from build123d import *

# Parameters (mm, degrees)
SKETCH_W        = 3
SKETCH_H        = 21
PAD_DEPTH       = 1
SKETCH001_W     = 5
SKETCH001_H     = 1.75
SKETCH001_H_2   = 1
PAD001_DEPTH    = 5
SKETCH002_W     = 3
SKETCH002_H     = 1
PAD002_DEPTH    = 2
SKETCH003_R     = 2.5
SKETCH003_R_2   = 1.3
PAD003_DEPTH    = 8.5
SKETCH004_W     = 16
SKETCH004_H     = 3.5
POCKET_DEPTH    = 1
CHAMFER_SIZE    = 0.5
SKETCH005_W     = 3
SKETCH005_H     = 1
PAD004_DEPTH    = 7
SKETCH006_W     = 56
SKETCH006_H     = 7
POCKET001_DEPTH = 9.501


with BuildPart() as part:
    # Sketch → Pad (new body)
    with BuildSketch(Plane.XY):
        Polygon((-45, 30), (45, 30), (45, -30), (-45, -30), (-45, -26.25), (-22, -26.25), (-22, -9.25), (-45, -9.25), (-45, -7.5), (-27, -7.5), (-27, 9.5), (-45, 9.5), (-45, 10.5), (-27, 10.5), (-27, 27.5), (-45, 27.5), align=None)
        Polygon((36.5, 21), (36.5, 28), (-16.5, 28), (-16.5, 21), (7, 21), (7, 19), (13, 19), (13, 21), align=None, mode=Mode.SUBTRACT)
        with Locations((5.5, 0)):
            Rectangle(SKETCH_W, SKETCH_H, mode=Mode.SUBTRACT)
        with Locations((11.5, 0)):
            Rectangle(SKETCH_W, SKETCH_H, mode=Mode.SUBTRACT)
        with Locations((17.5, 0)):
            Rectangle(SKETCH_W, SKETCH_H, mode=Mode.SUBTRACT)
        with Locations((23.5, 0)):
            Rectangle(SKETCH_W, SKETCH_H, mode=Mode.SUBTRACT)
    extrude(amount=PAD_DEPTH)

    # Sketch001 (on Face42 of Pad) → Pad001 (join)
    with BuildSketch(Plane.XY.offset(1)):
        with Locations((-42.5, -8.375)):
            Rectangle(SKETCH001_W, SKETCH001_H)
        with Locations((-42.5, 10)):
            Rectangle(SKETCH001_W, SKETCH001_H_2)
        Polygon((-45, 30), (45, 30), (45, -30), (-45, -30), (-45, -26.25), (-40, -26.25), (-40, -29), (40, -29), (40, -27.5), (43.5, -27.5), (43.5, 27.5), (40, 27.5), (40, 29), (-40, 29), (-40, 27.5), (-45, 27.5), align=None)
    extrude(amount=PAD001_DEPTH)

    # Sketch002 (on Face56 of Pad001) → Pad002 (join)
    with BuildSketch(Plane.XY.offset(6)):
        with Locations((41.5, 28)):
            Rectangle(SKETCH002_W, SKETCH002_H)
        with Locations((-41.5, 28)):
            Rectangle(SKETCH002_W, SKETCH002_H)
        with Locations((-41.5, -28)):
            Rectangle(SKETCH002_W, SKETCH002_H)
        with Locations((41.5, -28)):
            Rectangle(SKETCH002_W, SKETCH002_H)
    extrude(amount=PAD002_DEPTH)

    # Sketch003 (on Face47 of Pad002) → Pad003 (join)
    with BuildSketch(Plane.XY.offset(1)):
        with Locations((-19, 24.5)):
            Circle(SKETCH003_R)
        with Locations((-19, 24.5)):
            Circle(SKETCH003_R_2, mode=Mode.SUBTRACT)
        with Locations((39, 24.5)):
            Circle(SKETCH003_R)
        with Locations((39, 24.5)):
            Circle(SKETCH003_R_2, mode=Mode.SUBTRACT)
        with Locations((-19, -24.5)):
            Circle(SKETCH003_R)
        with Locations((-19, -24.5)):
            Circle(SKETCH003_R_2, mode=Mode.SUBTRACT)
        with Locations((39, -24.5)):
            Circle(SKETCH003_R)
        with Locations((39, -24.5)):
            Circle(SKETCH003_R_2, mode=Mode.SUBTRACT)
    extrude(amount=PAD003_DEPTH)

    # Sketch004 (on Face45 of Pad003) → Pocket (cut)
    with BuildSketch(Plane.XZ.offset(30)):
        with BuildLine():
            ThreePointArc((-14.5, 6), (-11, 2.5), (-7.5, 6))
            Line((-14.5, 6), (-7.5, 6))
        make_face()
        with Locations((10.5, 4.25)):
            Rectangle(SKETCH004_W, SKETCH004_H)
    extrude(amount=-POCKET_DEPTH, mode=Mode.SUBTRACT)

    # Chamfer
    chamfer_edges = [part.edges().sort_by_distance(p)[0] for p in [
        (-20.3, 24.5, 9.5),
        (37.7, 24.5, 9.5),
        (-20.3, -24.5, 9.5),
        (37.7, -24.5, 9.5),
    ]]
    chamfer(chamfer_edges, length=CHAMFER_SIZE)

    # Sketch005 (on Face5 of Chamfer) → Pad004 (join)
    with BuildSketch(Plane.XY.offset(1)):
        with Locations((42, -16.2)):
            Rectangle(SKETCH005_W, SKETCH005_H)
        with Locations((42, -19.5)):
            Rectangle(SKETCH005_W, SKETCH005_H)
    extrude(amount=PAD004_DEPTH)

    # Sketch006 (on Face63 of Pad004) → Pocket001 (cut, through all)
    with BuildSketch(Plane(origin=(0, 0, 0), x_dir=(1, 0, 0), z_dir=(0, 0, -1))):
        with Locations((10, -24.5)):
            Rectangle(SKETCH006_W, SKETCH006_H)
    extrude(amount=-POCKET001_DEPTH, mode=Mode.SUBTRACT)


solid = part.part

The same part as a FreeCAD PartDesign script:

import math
import FreeCAD as App
import Part
import Sketcher
from FreeCAD import Vector
Q = App.Units.Quantity


def edges_at(feature, points):
    """Names of the edges that pass closest to the given points."""
    edges = feature.Shape.Edges
    near = lambda p: min(range(len(edges)), key=lambda i: edges[i].distToShape(Part.Vertex(*p))[0])
    return sorted({f"Edge{near(p) + 1}" for p in points})

doc = App.newDocument("Part")
params = doc.addObject("Spreadsheet::Sheet", "Params")
for row, (alias, value) in enumerate([
    ("sketch1_width", "90 mm"),
    ("sketch1_width2", "18 mm"),
    ("sketch1_width3", "23 mm"),
    ("sketch1_width4", "3 mm"),
    ("sketch1_width5", "6 mm"),
    ("pad1_length", "1 mm"),
    ("sketch2_width", "5 mm"),
    ("sketch2_width2", "90 mm"),
    ("sketch2_height", "1 mm"),
    ("sketch2_height2", "55 mm"),
    ("sketch2_height3", "60 mm"),
    ("pad2_length", "5 mm"),
    ("sketch3_width", "3 mm"),
    ("sketch3_height", "1 mm"),
    ("pad3_length", "2 mm"),
    ("sketch4_diameter", "5 mm"),
    ("sketch4_diameter2", "2.6 mm"),
    ("pad4_length", "8.5 mm"),
    ("sketch5_radius", "3.5 mm"),
    ("sketch5_width", "16 mm"),
    ("sketch5_height", "3.5 mm"),
    ("pocket1_length", "1 mm"),
    ("chamfer_size", "0.5 mm"),
    ("sketch6_width", "3 mm"),
    ("sketch6_height", "1 mm"),
    ("pad5_length", "7 mm"),
    ("sketch7_width", "56 mm"),
    ("sketch7_height", "7 mm"),
], start=1):
    params.set(f"A{row}", alias)
    params.set(f"B{row}", "=" + value)
    params.setAlias(f"B{row}", alias)

body = doc.addObject("PartDesign::Body", "Body")

# Sketch on XY plane
sketch1 = doc.addObject("Sketcher::SketchObject", "Sketch")
body.addObject(sketch1)
sketch1.AttachmentSupport = (doc.XY_Plane, [""])
sketch1.MapMode = "FlatFace"
sketch1.addGeometry([
    Part.LineSegment(Vector(45, 30, 0), Vector(-45, 30, 0)),  # 0
    Part.LineSegment(Vector(-45, 30, 0), Vector(-45, 27.5, 0)),  # 1
    Part.LineSegment(Vector(-45, 27.5, 0), Vector(-27, 27.5, 0)),  # 2
    Part.LineSegment(Vector(-27, 27.5, 0), Vector(-27, 10.5, 0)),  # 3
    Part.LineSegment(Vector(-27, 10.5, 0), Vector(-45, 10.5, 0)),  # 4
    Part.LineSegment(Vector(-45, 10.5, 0), Vector(-45, 9.5, 0)),  # 5
    Part.LineSegment(Vector(-45, 9.5, 0), Vector(-27, 9.5, 0)),  # 6
    Part.LineSegment(Vector(-27, 9.5, 0), Vector(-27, -7.5, 0)),  # 7
    Part.LineSegment(Vector(-27, -7.5, 0), Vector(-45, -7.5, 0)),  # 8
    Part.LineSegment(Vector(-45, -7.5, 0), Vector(-45, -9.2, 0)),  # 9
    Part.LineSegment(Vector(-45, -9.2, 0), Vector(-22, -9.2, 0)),  # 10
    Part.LineSegment(Vector(-22, -9.2, 0), Vector(-22, -26.2, 0)),  # 11
    Part.LineSegment(Vector(-22, -26.2, 0), Vector(-45, -26.2, 0)),  # 12
    Part.LineSegment(Vector(-45, -26.2, 0), Vector(-45, -30, 0)),  # 13
    Part.LineSegment(Vector(-45, -30, 0), Vector(45, -30, 0)),  # 14
    Part.LineSegment(Vector(45, -30, 0), Vector(45, 30, 0)),  # 15
    Part.LineSegment(Vector(22, -10.5, 0), Vector(22, 10.5, 0)),  # 16
    Part.LineSegment(Vector(22, 10.5, 0), Vector(25, 10.5, 0)),  # 17
    Part.LineSegment(Vector(25, 10.5, 0), Vector(25, -10.5, 0)),  # 18
    Part.LineSegment(Vector(25, -10.5, 0), Vector(22, -10.5, 0)),  # 19
    Part.LineSegment(Vector(16, -10.5, 0), Vector(16, 10.5, 0)),  # 20
    Part.LineSegment(Vector(16, 10.5, 0), Vector(19, 10.5, 0)),  # 21
    Part.LineSegment(Vector(19, 10.5, 0), Vector(19, -10.5, 0)),  # 22
    Part.LineSegment(Vector(19, -10.5, 0), Vector(16, -10.5, 0)),  # 23
    Part.LineSegment(Vector(10, -10.5, 0), Vector(10, 10.5, 0)),  # 24
    Part.LineSegment(Vector(10, 10.5, 0), Vector(13, 10.5, 0)),  # 25
    Part.LineSegment(Vector(13, 10.5, 0), Vector(13, -10.5, 0)),  # 26
    Part.LineSegment(Vector(13, -10.5, 0), Vector(10, -10.5, 0)),  # 27
    Part.LineSegment(Vector(4, -10.5, 0), Vector(4, 10.5, 0)),  # 28
    Part.LineSegment(Vector(4, 10.5, 0), Vector(7, 10.5, 0)),  # 29
    Part.LineSegment(Vector(7, 10.5, 0), Vector(7, -10.5, 0)),  # 30
    Part.LineSegment(Vector(7, -10.5, 0), Vector(4, -10.5, 0)),  # 31
    Part.LineSegment(Vector(36.5, 21, 0), Vector(13, 21, 0)),  # 32
    Part.LineSegment(Vector(13, 21, 0), Vector(13, 19, 0)),  # 33
    Part.LineSegment(Vector(13, 19, 0), Vector(7, 19, 0)),  # 34
    Part.LineSegment(Vector(7, 19, 0), Vector(7, 21, 0)),  # 35
    Part.LineSegment(Vector(7, 21, 0), Vector(-16.5, 21, 0)),  # 36
    Part.LineSegment(Vector(-16.5, 21, 0), Vector(-16.5, 28, 0)),  # 37
    Part.LineSegment(Vector(-16.5, 28, 0), Vector(36.5, 28, 0)),  # 38
    Part.LineSegment(Vector(36.5, 28, 0), Vector(36.5, 21, 0)),  # 39
], False)
sketch1.addConstraint([
    Sketcher.Constraint("Coincident", 0, 2, 1, 1),
    Sketcher.Constraint("Coincident", 1, 2, 2, 1),
    Sketcher.Constraint("Coincident", 2, 2, 3, 1),
    Sketcher.Constraint("Coincident", 3, 2, 4, 1),
    Sketcher.Constraint("Coincident", 4, 2, 5, 1),
    Sketcher.Constraint("Coincident", 5, 2, 6, 1),
    Sketcher.Constraint("Coincident", 6, 2, 7, 1),
    Sketcher.Constraint("Coincident", 7, 2, 8, 1),
    Sketcher.Constraint("Coincident", 8, 2, 9, 1),
    Sketcher.Constraint("Coincident", 9, 2, 10, 1),
    Sketcher.Constraint("Coincident", 10, 2, 11, 1),
    Sketcher.Constraint("Coincident", 11, 2, 12, 1),
    Sketcher.Constraint("Coincident", 12, 2, 13, 1),
    Sketcher.Constraint("Coincident", 13, 2, 14, 1),
    Sketcher.Constraint("Coincident", 14, 2, 15, 1),
    Sketcher.Constraint("Coincident", 15, 2, 0, 1),
    Sketcher.Constraint("Coincident", 16, 2, 17, 1),
    Sketcher.Constraint("Coincident", 17, 2, 18, 1),
    Sketcher.Constraint("Coincident", 18, 2, 19, 1),
    Sketcher.Constraint("Coincident", 19, 2, 16, 1),
    Sketcher.Constraint("Coincident", 20, 2, 21, 1),
    Sketcher.Constraint("Coincident", 21, 2, 22, 1),
    Sketcher.Constraint("Coincident", 22, 2, 23, 1),
    Sketcher.Constraint("Coincident", 23, 2, 20, 1),
    Sketcher.Constraint("Coincident", 24, 2, 25, 1),
    Sketcher.Constraint("Coincident", 25, 2, 26, 1),
    Sketcher.Constraint("Coincident", 26, 2, 27, 1),
    Sketcher.Constraint("Coincident", 27, 2, 24, 1),
    Sketcher.Constraint("Coincident", 28, 2, 29, 1),
    Sketcher.Constraint("Coincident", 29, 2, 30, 1),
    Sketcher.Constraint("Coincident", 30, 2, 31, 1),
    Sketcher.Constraint("Coincident", 31, 2, 28, 1),
    Sketcher.Constraint("Coincident", 32, 2, 33, 1),
    Sketcher.Constraint("Coincident", 33, 2, 34, 1),
    Sketcher.Constraint("Coincident", 34, 2, 35, 1),
    Sketcher.Constraint("Coincident", 35, 2, 36, 1),
    Sketcher.Constraint("Coincident", 36, 2, 37, 1),
    Sketcher.Constraint("Coincident", 37, 2, 38, 1),
    Sketcher.Constraint("Coincident", 38, 2, 39, 1),
    Sketcher.Constraint("Coincident", 39, 2, 32, 1),
    Sketcher.Constraint("Horizontal", 0),
    Sketcher.Constraint("Vertical", 1),
    Sketcher.Constraint("Horizontal", 2),
    Sketcher.Constraint("Vertical", 3),
    Sketcher.Constraint("Horizontal", 4),
    Sketcher.Constraint("Vertical", 5),
    Sketcher.Constraint("Horizontal", 6),
    Sketcher.Constraint("Vertical", 7),
    Sketcher.Constraint("Horizontal", 8),
    Sketcher.Constraint("Vertical", 9),
    Sketcher.Constraint("Horizontal", 10),
    Sketcher.Constraint("Vertical", 11),
    Sketcher.Constraint("Horizontal", 12),
    Sketcher.Constraint("Vertical", 13),
    Sketcher.Constraint("Horizontal", 14),
    Sketcher.Constraint("Vertical", 15),
    Sketcher.Constraint("Vertical", 16),
    Sketcher.Constraint("Horizontal", 17),
    Sketcher.Constraint("Vertical", 18),
    Sketcher.Constraint("Horizontal", 19),
    Sketcher.Constraint("Vertical", 20),
    Sketcher.Constraint("Horizontal", 21),
    Sketcher.Constraint("Vertical", 22),
    Sketcher.Constraint("Horizontal", 23),
    Sketcher.Constraint("Vertical", 24),
    Sketcher.Constraint("Horizontal", 25),
    Sketcher.Constraint("Vertical", 26),
    Sketcher.Constraint("Horizontal", 27),
    Sketcher.Constraint("Vertical", 28),
    Sketcher.Constraint("Horizontal", 29),
    Sketcher.Constraint("Vertical", 30),
    Sketcher.Constraint("Horizontal", 31),
    Sketcher.Constraint("Horizontal", 32),
    Sketcher.Constraint("Vertical", 33),
    Sketcher.Constraint("Horizontal", 34),
    Sketcher.Constraint("Vertical", 35),
    Sketcher.Constraint("Horizontal", 36),
    Sketcher.Constraint("Vertical", 37),
    Sketcher.Constraint("Horizontal", 38),
    Sketcher.Constraint("Vertical", 39),
    Sketcher.Constraint("Symmetric", 0, 2, 14, 2, -1, 1),
    Sketcher.Constraint("Horizontal", 4, 2, 16, 2),
    Sketcher.Constraint("Horizontal", 17, 2, 20, 2),
    Sketcher.Constraint("Horizontal", 19, 2, 22, 2),
    Sketcher.Constraint("Horizontal", 21, 2, 24, 2),
    Sketcher.Constraint("Horizontal", 23, 2, 26, 2),
    Sketcher.Constraint("Horizontal", 25, 2, 28, 2),
    Sketcher.Constraint("Horizontal", 27, 2, 30, 2),
    Sketcher.Constraint("Horizontal", 32, 2, 35, 2),
    Sketcher.Constraint("Vertical", 1, 2, 4, 2),
    Sketcher.Constraint("Vertical", 3, 2, 6, 2),
    Sketcher.Constraint("Vertical", 5, 2, 8, 2),
    Sketcher.Constraint("Vertical", 9, 2, 12, 2),
    Sketcher.Constraint("Vertical", 26, 2, 32, 2),
    Sketcher.Constraint("Vertical", 30, 2, 34, 2),
    Sketcher.Constraint("Equal", 19, 21),
    Sketcher.Constraint("Equal", 23, 25),
    Sketcher.Constraint("Equal", 27, 29),
    Sketcher.Constraint("Equal", 32, 36),
    Sketcher.Constraint("Equal", 3, 7),
    Sketcher.Constraint("Equal", 7, 11),
    Sketcher.Constraint("DistanceX", 0, 2, 0, 1, Q("90 mm")),
    Sketcher.Constraint("DistanceX", 2, 1, 2, 2, Q("18 mm")),
    Sketcher.Constraint("DistanceX", 10, 1, 10, 2, Q("23 mm")),
    Sketcher.Constraint("DistanceX", 17, 1, 17, 2, Q("3 mm")),
    Sketcher.Constraint("DistanceX", 34, 2, 34, 1, Q("6 mm")),
    Sketcher.Constraint("DistanceX", 38, 1, 38, 2, Q("53 mm")),
    Sketcher.Constraint("DistanceY", 3, 2, 3, 1, Q("17 mm")),
    Sketcher.Constraint("DistanceY", 5, 2, 5, 1, Q("1 mm")),
    Sketcher.Constraint("DistanceY", 15, 1, 15, 2, Q("60 mm")),
    Sketcher.Constraint("DistanceY", 16, 1, 16, 2, Q("21 mm")),
    Sketcher.Constraint("DistanceY", 33, 2, 33, 1, Q("2 mm")),
    Sketcher.Constraint("DistanceY", 37, 1, 37, 2, Q("7 mm")),
    Sketcher.Constraint("DistanceY", 1, 2, 1, 1, Q("2.5 mm")),
    Sketcher.Constraint("DistanceX", -1, 1, 16, 2, Q("22 mm")),
    Sketcher.Constraint("DistanceX", -1, 1, 20, 2, Q("16 mm")),
    Sketcher.Constraint("DistanceX", -1, 1, 24, 2, Q("10 mm")),
    Sketcher.Constraint("DistanceY", -1, 1, 32, 2, Q("21 mm")),
    Sketcher.Constraint("DistanceY", 9, 2, 9, 1, Q("1.75 mm")),
])
sketch1.setExpression("Constraints[101]", "Params.sketch1_width")
sketch1.setExpression("Constraints[102]", "Params.sketch1_width2")
sketch1.setExpression("Constraints[103]", "Params.sketch1_width3")
sketch1.setExpression("Constraints[104]", "Params.sketch1_width4")
sketch1.setExpression("Constraints[105]", "Params.sketch1_width5")
pad1 = doc.addObject("PartDesign::Pad", "Pad")
body.addObject(pad1)
pad1.Profile = sketch1
pad1.setExpression("Length", "Params.pad1_length")

# Sketch on XY plane
sketch2 = doc.addObject("Sketcher::SketchObject", "Sketch001")
body.addObject(sketch2)
sketch2.AttachmentSupport = (doc.XY_Plane, [""])
sketch2.MapMode = "FlatFace"
sketch2.AttachmentOffset = App.Placement(Vector(0, 0, 1), App.Rotation())
sketch2.addGeometry([
    Part.LineSegment(Vector(-45, -7.5, 0), Vector(-45, -9.2, 0)),  # 0
    Part.LineSegment(Vector(-45, -9.2, 0), Vector(-40, -9.2, 0)),  # 1
    Part.LineSegment(Vector(-40, -9.2, 0), Vector(-40, -7.5, 0)),  # 2
    Part.LineSegment(Vector(-40, -7.5, 0), Vector(-45, -7.5, 0)),  # 3
    Part.LineSegment(Vector(-45, 10.5, 0), Vector(-45, 9.5, 0)),  # 4
    Part.LineSegment(Vector(-45, 9.5, 0), Vector(-40, 9.5, 0)),  # 5
    Part.LineSegment(Vector(-40, 9.5, 0), Vector(-40, 10.5, 0)),  # 6
    Part.LineSegment(Vector(-40, 10.5, 0), Vector(-45, 10.5, 0)),  # 7
    Part.LineSegment(Vector(45, 30, 0), Vector(-45, 30, 0)),  # 8
    Part.LineSegment(Vector(-45, 30, 0), Vector(-45, 27.5, 0)),  # 9
    Part.LineSegment(Vector(-45, 27.5, 0), Vector(-40, 27.5, 0)),  # 10
    Part.LineSegment(Vector(-40, 27.5, 0), Vector(-40, 29, 0)),  # 11
    Part.LineSegment(Vector(-40, 29, 0), Vector(40, 29, 0)),  # 12
    Part.LineSegment(Vector(40, 29, 0), Vector(40, 27.5, 0)),  # 13
    Part.LineSegment(Vector(40, 27.5, 0), Vector(43.5, 27.5, 0)),  # 14
    Part.LineSegment(Vector(43.5, 27.5, 0), Vector(43.5, -27.5, 0)),  # 15
    Part.LineSegment(Vector(43.5, -27.5, 0), Vector(40, -27.5, 0)),  # 16
    Part.LineSegment(Vector(40, -27.5, 0), Vector(40, -29, 0)),  # 17
    Part.LineSegment(Vector(40, -29, 0), Vector(-40, -29, 0)),  # 18
    Part.LineSegment(Vector(-40, -29, 0), Vector(-40, -26.2, 0)),  # 19
    Part.LineSegment(Vector(-40, -26.2, 0), Vector(-45, -26.2, 0)),  # 20
    Part.LineSegment(Vector(-45, -26.2, 0), Vector(-45, -30, 0)),  # 21
    Part.LineSegment(Vector(-45, -30, 0), Vector(45, -30, 0)),  # 22
    Part.LineSegment(Vector(45, -30, 0), Vector(45, 30, 0)),  # 23
], False)
sketch2.addConstraint([
    Sketcher.Constraint("Coincident", 0, 2, 1, 1),
    Sketcher.Constraint("Coincident", 1, 2, 2, 1),
    Sketcher.Constraint("Coincident", 2, 2, 3, 1),
    Sketcher.Constraint("Coincident", 3, 2, 0, 1),
    Sketcher.Constraint("Coincident", 4, 2, 5, 1),
    Sketcher.Constraint("Coincident", 5, 2, 6, 1),
    Sketcher.Constraint("Coincident", 6, 2, 7, 1),
    Sketcher.Constraint("Coincident", 7, 2, 4, 1),
    Sketcher.Constraint("Coincident", 8, 2, 9, 1),
    Sketcher.Constraint("Coincident", 9, 2, 10, 1),
    Sketcher.Constraint("Coincident", 10, 2, 11, 1),
    Sketcher.Constraint("Coincident", 11, 2, 12, 1),
    Sketcher.Constraint("Coincident", 12, 2, 13, 1),
    Sketcher.Constraint("Coincident", 13, 2, 14, 1),
    Sketcher.Constraint("Coincident", 14, 2, 15, 1),
    Sketcher.Constraint("Coincident", 15, 2, 16, 1),
    Sketcher.Constraint("Coincident", 16, 2, 17, 1),
    Sketcher.Constraint("Coincident", 17, 2, 18, 1),
    Sketcher.Constraint("Coincident", 18, 2, 19, 1),
    Sketcher.Constraint("Coincident", 19, 2, 20, 1),
    Sketcher.Constraint("Coincident", 20, 2, 21, 1),
    Sketcher.Constraint("Coincident", 21, 2, 22, 1),
    Sketcher.Constraint("Coincident", 22, 2, 23, 1),
    Sketcher.Constraint("Coincident", 23, 2, 8, 1),
    Sketcher.Constraint("Vertical", 0),
    Sketcher.Constraint("Horizontal", 1),
    Sketcher.Constraint("Vertical", 2),
    Sketcher.Constraint("Horizontal", 3),
    Sketcher.Constraint("Vertical", 4),
    Sketcher.Constraint("Horizontal", 5),
    Sketcher.Constraint("Vertical", 6),
    Sketcher.Constraint("Horizontal", 7),
    Sketcher.Constraint("Horizontal", 8),
    Sketcher.Constraint("Vertical", 9),
    Sketcher.Constraint("Horizontal", 10),
    Sketcher.Constraint("Vertical", 11),
    Sketcher.Constraint("Horizontal", 12),
    Sketcher.Constraint("Vertical", 13),
    Sketcher.Constraint("Horizontal", 14),
    Sketcher.Constraint("Vertical", 15),
    Sketcher.Constraint("Horizontal", 16),
    Sketcher.Constraint("Vertical", 17),
    Sketcher.Constraint("Horizontal", 18),
    Sketcher.Constraint("Vertical", 19),
    Sketcher.Constraint("Horizontal", 20),
    Sketcher.Constraint("Vertical", 21),
    Sketcher.Constraint("Horizontal", 22),
    Sketcher.Constraint("Vertical", 23),
    Sketcher.Constraint("Symmetric", 10, 2, 16, 2, -1, 1),
    Sketcher.Constraint("Symmetric", 12, 2, 18, 2, -1, 1),
    Sketcher.Constraint("Symmetric", 8, 2, 22, 2, -1, 1),
    Sketcher.Constraint("Symmetric", 10, 2, 13, 2, -2),
    Sketcher.Constraint("Vertical", 3, 2, 4, 2),
    Sketcher.Constraint("Vertical", 2, 2, 5, 2),
    Sketcher.Constraint("Vertical", 7, 2, 8, 2),
    Sketcher.Constraint("Vertical", 6, 2, 10, 2),
    Sketcher.Constraint("Vertical", 9, 2, 20, 2),
    Sketcher.Constraint("DistanceX", 1, 1, 1, 2, Q("5 mm")),
    Sketcher.Constraint("DistanceX", 8, 2, 8, 1, Q("90 mm")),
    Sketcher.Constraint("DistanceY", 4, 2, 4, 1, Q("1 mm")),
    Sketcher.Constraint("DistanceY", 15, 2, 15, 1, Q("55 mm")),
    Sketcher.Constraint("DistanceY", 23, 1, 23, 2, Q("60 mm")),
    Sketcher.Constraint("DistanceX", 14, 1, 14, 2, Q("3.5 mm")),
    Sketcher.Constraint("DistanceY", 11, 1, 11, 2, Q("1.5 mm")),
    Sketcher.Constraint("DistanceY", 3, 2, 4, 2, Q("17 mm")),
    Sketcher.Constraint("DistanceY", 7, 2, 9, 2, Q("17 mm")),
    Sketcher.Constraint("DistanceY", 19, 2, 1, 2, Q("17 mm")),
    Sketcher.Constraint("DistanceY", 0, 2, 0, 1, Q("1.75 mm")),
])
sketch2.setExpression("Constraints[57]", "Params.sketch2_width")
sketch2.setExpression("Constraints[58]", "Params.sketch2_width2")
sketch2.setExpression("Constraints[59]", "Params.sketch2_height")
sketch2.setExpression("Constraints[60]", "Params.sketch2_height2")
sketch2.setExpression("Constraints[61]", "Params.sketch2_height3")
pad2 = doc.addObject("PartDesign::Pad", "Pad001")
body.addObject(pad2)
pad2.Profile = sketch2
pad2.setExpression("Length", "Params.pad2_length")

# Sketch on XY plane
sketch3 = doc.addObject("Sketcher::SketchObject", "Sketch002")
body.addObject(sketch3)
sketch3.AttachmentSupport = (doc.XY_Plane, [""])
sketch3.MapMode = "FlatFace"
sketch3.AttachmentOffset = App.Placement(Vector(0, 0, 6), App.Rotation())
sketch3.addGeometry([
    Part.LineSegment(Vector(40, 28.5, 0), Vector(40, 27.5, 0)),  # 0
    Part.LineSegment(Vector(40, 27.5, 0), Vector(43, 27.5, 0)),  # 1
    Part.LineSegment(Vector(43, 27.5, 0), Vector(43, 28.5, 0)),  # 2
    Part.LineSegment(Vector(43, 28.5, 0), Vector(40, 28.5, 0)),  # 3
    Part.LineSegment(Vector(-43, 28.5, 0), Vector(-43, 27.5, 0)),  # 4
    Part.LineSegment(Vector(-43, 27.5, 0), Vector(-40, 27.5, 0)),  # 5
    Part.LineSegment(Vector(-40, 27.5, 0), Vector(-40, 28.5, 0)),  # 6
    Part.LineSegment(Vector(-40, 28.5, 0), Vector(-43, 28.5, 0)),  # 7
    Part.LineSegment(Vector(-43, -27.5, 0), Vector(-43, -28.5, 0)),  # 8
    Part.LineSegment(Vector(-43, -28.5, 0), Vector(-40, -28.5, 0)),  # 9
    Part.LineSegment(Vector(-40, -28.5, 0), Vector(-40, -27.5, 0)),  # 10
    Part.LineSegment(Vector(-40, -27.5, 0), Vector(-43, -27.5, 0)),  # 11
    Part.LineSegment(Vector(40, -27.5, 0), Vector(40, -28.5, 0)),  # 12
    Part.LineSegment(Vector(40, -28.5, 0), Vector(43, -28.5, 0)),  # 13
    Part.LineSegment(Vector(43, -28.5, 0), Vector(43, -27.5, 0)),  # 14
    Part.LineSegment(Vector(43, -27.5, 0), Vector(40, -27.5, 0)),  # 15
], False)
sketch3.addConstraint([
    Sketcher.Constraint("Coincident", 0, 2, 1, 1),
    Sketcher.Constraint("Coincident", 1, 2, 2, 1),
    Sketcher.Constraint("Coincident", 2, 2, 3, 1),
    Sketcher.Constraint("Coincident", 3, 2, 0, 1),
    Sketcher.Constraint("Coincident", 4, 2, 5, 1),
    Sketcher.Constraint("Coincident", 5, 2, 6, 1),
    Sketcher.Constraint("Coincident", 6, 2, 7, 1),
    Sketcher.Constraint("Coincident", 7, 2, 4, 1),
    Sketcher.Constraint("Coincident", 8, 2, 9, 1),
    Sketcher.Constraint("Coincident", 9, 2, 10, 1),
    Sketcher.Constraint("Coincident", 10, 2, 11, 1),
    Sketcher.Constraint("Coincident", 11, 2, 8, 1),
    Sketcher.Constraint("Coincident", 12, 2, 13, 1),
    Sketcher.Constraint("Coincident", 13, 2, 14, 1),
    Sketcher.Constraint("Coincident", 14, 2, 15, 1),
    Sketcher.Constraint("Coincident", 15, 2, 12, 1),
    Sketcher.Constraint("Vertical", 0),
    Sketcher.Constraint("Horizontal", 1),
    Sketcher.Constraint("Vertical", 2),
    Sketcher.Constraint("Horizontal", 3),
    Sketcher.Constraint("Vertical", 4),
    Sketcher.Constraint("Horizontal", 5),
    Sketcher.Constraint("Vertical", 6),
    Sketcher.Constraint("Horizontal", 7),
    Sketcher.Constraint("Vertical", 8),
    Sketcher.Constraint("Horizontal", 9),
    Sketcher.Constraint("Vertical", 10),
    Sketcher.Constraint("Horizontal", 11),
    Sketcher.Constraint("Vertical", 12),
    Sketcher.Constraint("Horizontal", 13),
    Sketcher.Constraint("Vertical", 14),
    Sketcher.Constraint("Horizontal", 15),
    Sketcher.Constraint("Symmetric", 2, 2, 8, 2, -1, 1),
    Sketcher.Constraint("Symmetric", 0, 2, 10, 2, -1, 1),
    Sketcher.Constraint("Symmetric", 6, 2, 12, 2, -1, 1),
    Sketcher.Constraint("Symmetric", 4, 2, 14, 2, -1, 1),
    Sketcher.Constraint("Symmetric", 1, 2, 4, 2, -2),
    Sketcher.Constraint("Symmetric", 3, 2, 6, 2, -2),
    Sketcher.Constraint("DistanceX", 1, 1, 1, 2, Q("3 mm")),
    Sketcher.Constraint("DistanceY", 0, 2, 0, 1, Q("1 mm")),
    Sketcher.Constraint("DistanceX", -1, 1, 0, 2, Q("40 mm")),
    Sketcher.Constraint("DistanceY", 8, 2, 4, 2, Q("56 mm")),
])
sketch3.setExpression("Constraints[38]", "Params.sketch3_width")
sketch3.setExpression("Constraints[39]", "Params.sketch3_height")
pad3 = doc.addObject("PartDesign::Pad", "Pad002")
body.addObject(pad3)
pad3.Profile = sketch3
pad3.setExpression("Length", "Params.pad3_length")

# Sketch on XY plane
sketch4 = doc.addObject("Sketcher::SketchObject", "Sketch003")
body.addObject(sketch4)
sketch4.AttachmentSupport = (doc.XY_Plane, [""])
sketch4.MapMode = "FlatFace"
sketch4.AttachmentOffset = App.Placement(Vector(0, 0, 1), App.Rotation())
sketch4.addGeometry([
    Part.Circle(Vector(-19, 24.5, 0), Vector(0, 0, 1), 2.5),  # 0
    Part.Circle(Vector(-19, 24.5, 0), Vector(0, 0, 1), 1.3),  # 1
    Part.Circle(Vector(39, 24.5, 0), Vector(0, 0, 1), 2.5),  # 2
    Part.Circle(Vector(39, 24.5, 0), Vector(0, 0, 1), 1.3),  # 3
    Part.Circle(Vector(-19, -24.5, 0), Vector(0, 0, 1), 2.5),  # 4
    Part.Circle(Vector(-19, -24.5, 0), Vector(0, 0, 1), 1.3),  # 5
    Part.Circle(Vector(39, -24.5, 0), Vector(0, 0, 1), 2.5),  # 6
    Part.Circle(Vector(39, -24.5, 0), Vector(0, 0, 1), 1.3),  # 7
], False)
sketch4.addConstraint([
    Sketcher.Constraint("Coincident", 1, 3, 0, 3),
    Sketcher.Constraint("Coincident", 3, 3, 2, 3),
    Sketcher.Constraint("Coincident", 5, 3, 4, 3),
    Sketcher.Constraint("Coincident", 7, 3, 6, 3),
    Sketcher.Constraint("Equal", 0, 2),
    Sketcher.Constraint("Equal", 1, 3),
    Sketcher.Constraint("Equal", 2, 4),
    Sketcher.Constraint("Equal", 3, 5),
    Sketcher.Constraint("Equal", 4, 6),
    Sketcher.Constraint("Equal", 5, 7),
    Sketcher.Constraint("Symmetric", 0, 3, 4, 3, -1),
    Sketcher.Constraint("Symmetric", 2, 3, 6, 3, -1),
    Sketcher.Constraint("Horizontal", 1, 3, 2, 3),
    Sketcher.Constraint("Diameter", 0, Q("5 mm")),
    Sketcher.Constraint("Diameter", 1, Q("2.6 mm")),
    Sketcher.Constraint("DistanceX", 0, 3, -1, 1, Q("19 mm")),
    Sketcher.Constraint("DistanceX", -1, 1, 2, 3, Q("39 mm")),
    Sketcher.Constraint("DistanceY", 4, 3, 0, 3, Q("49 mm")),
])
sketch4.setExpression("Constraints[13]", "Params.sketch4_diameter")
sketch4.setExpression("Constraints[14]", "Params.sketch4_diameter2")
pad4 = doc.addObject("PartDesign::Pad", "Pad003")
body.addObject(pad4)
pad4.Profile = sketch4
pad4.setExpression("Length", "Params.pad4_length")

# Sketch on XZ plane
sketch5 = doc.addObject("Sketcher::SketchObject", "Sketch004")
body.addObject(sketch5)
sketch5.AttachmentSupport = (doc.XZ_Plane, [""])
sketch5.MapMode = "FlatFace"
sketch5.AttachmentOffset = App.Placement(Vector(0, 0, 30), App.Rotation())
sketch5.addGeometry([
    Part.ArcOfCircle(Part.Circle(Vector(-11, 6, 0), Vector(0, 0, 1), 3.5), math.radians(180), math.radians(360)),  # 0
    Part.LineSegment(Vector(-7.5, 6, 0), Vector(-14.5, 6, 0)),  # 1
    Part.LineSegment(Vector(2.5, 6, 0), Vector(2.5, 2.5, 0)),  # 2
    Part.LineSegment(Vector(2.5, 2.5, 0), Vector(18.5, 2.5, 0)),  # 3
    Part.LineSegment(Vector(18.5, 2.5, 0), Vector(18.5, 6, 0)),  # 4
    Part.LineSegment(Vector(18.5, 6, 0), Vector(2.5, 6, 0)),  # 5
], False)
sketch5.addConstraint([
    Sketcher.Constraint("Coincident", 0, 1, 1, 2),
    Sketcher.Constraint("Coincident", 1, 1, 0, 2),
    Sketcher.Constraint("Coincident", 2, 2, 3, 1),
    Sketcher.Constraint("Coincident", 3, 2, 4, 1),
    Sketcher.Constraint("Coincident", 4, 2, 5, 1),
    Sketcher.Constraint("Coincident", 5, 2, 2, 1),
    Sketcher.Constraint("Horizontal", 1),
    Sketcher.Constraint("Vertical", 2),
    Sketcher.Constraint("Horizontal", 3),
    Sketcher.Constraint("Vertical", 4),
    Sketcher.Constraint("Horizontal", 5),
    Sketcher.Constraint("Horizontal", 1, 1, 4, 2),
    Sketcher.Constraint("Radius", 0, Q("3.5 mm")),
    Sketcher.Constraint("DistanceX", 3, 1, 3, 2, Q("16 mm")),
    Sketcher.Constraint("DistanceY", 2, 2, 2, 1, Q("3.5 mm")),
    Sketcher.Constraint("DistanceX", 0, 3, -1, 1, Q("11 mm")),
    Sketcher.Constraint("DistanceY", -1, 1, 0, 3, Q("6 mm")),
    Sketcher.Constraint("DistanceY", -1, 1, 0, 1, Q("6 mm")),
    Sketcher.Constraint("DistanceX", 1, 1, 2, 2, Q("10 mm")),
])
sketch5.setExpression("Constraints[12]", "Params.sketch5_radius")
sketch5.setExpression("Constraints[13]", "Params.sketch5_width")
sketch5.setExpression("Constraints[14]", "Params.sketch5_height")
pocket1 = doc.addObject("PartDesign::Pocket", "Pocket")
body.addObject(pocket1)
pocket1.Profile = sketch5
pocket1.setExpression("Length", "Params.pocket1_length")
doc.recompute()

chamfer = doc.addObject("PartDesign::Chamfer", "Chamfer")
body.addObject(chamfer)
chamfer.Base = (pocket1, edges_at(pocket1, [
    (-20.3, 24.5, 9.5),
    (37.7, 24.5, 9.5),
    (-20.3, -24.5, 9.5),
    (37.7, -24.5, 9.5),
]))
chamfer.setExpression("Size", "Params.chamfer_size")

# Sketch on XY plane
sketch6 = doc.addObject("Sketcher::SketchObject", "Sketch005")
body.addObject(sketch6)
sketch6.AttachmentSupport = (doc.XY_Plane, [""])
sketch6.MapMode = "FlatFace"
sketch6.AttachmentOffset = App.Placement(Vector(0, 0, 1), App.Rotation())
sketch6.addGeometry([
    Part.LineSegment(Vector(40.5, -15.7, 0), Vector(40.5, -16.7, 0)),  # 0
    Part.LineSegment(Vector(40.5, -16.7, 0), Vector(43.5, -16.7, 0)),  # 1
    Part.LineSegment(Vector(43.5, -16.7, 0), Vector(43.5, -15.7, 0)),  # 2
    Part.LineSegment(Vector(43.5, -15.7, 0), Vector(40.5, -15.7, 0)),  # 3
    Part.LineSegment(Vector(40.5, -19, 0), Vector(40.5, -20, 0)),  # 4
    Part.LineSegment(Vector(40.5, -20, 0), Vector(43.5, -20, 0)),  # 5
    Part.LineSegment(Vector(43.5, -20, 0), Vector(43.5, -19, 0)),  # 6
    Part.LineSegment(Vector(43.5, -19, 0), Vector(40.5, -19, 0)),  # 7
], False)
sketch6.addConstraint([
    Sketcher.Constraint("Coincident", 0, 2, 1, 1),
    Sketcher.Constraint("Coincident", 1, 2, 2, 1),
    Sketcher.Constraint("Coincident", 2, 2, 3, 1),
    Sketcher.Constraint("Coincident", 3, 2, 0, 1),
    Sketcher.Constraint("Coincident", 4, 2, 5, 1),
    Sketcher.Constraint("Coincident", 5, 2, 6, 1),
    Sketcher.Constraint("Coincident", 6, 2, 7, 1),
    Sketcher.Constraint("Coincident", 7, 2, 4, 1),
    Sketcher.Constraint("Vertical", 0),
    Sketcher.Constraint("Horizontal", 1),
    Sketcher.Constraint("Vertical", 2),
    Sketcher.Constraint("Horizontal", 3),
    Sketcher.Constraint("Vertical", 4),
    Sketcher.Constraint("Horizontal", 5),
    Sketcher.Constraint("Vertical", 6),
    Sketcher.Constraint("Horizontal", 7),
    Sketcher.Constraint("Vertical", 3, 2, 4, 2),
    Sketcher.Constraint("Vertical", 2, 2, 5, 2),
    Sketcher.Constraint("Equal", 2, 4),
    Sketcher.Constraint("DistanceX", 1, 1, 1, 2, Q("3 mm")),
    Sketcher.Constraint("DistanceY", 0, 2, 0, 1, Q("1 mm")),
    Sketcher.Constraint("DistanceY", 4, 2, -1, 1, Q("20 mm")),
    Sketcher.Constraint("DistanceX", -1, 1, 0, 2, Q("40.5 mm")),
    Sketcher.Constraint("DistanceY", 0, 2, -1, 1, Q("16.7 mm")),
])
sketch6.setExpression("Constraints[19]", "Params.sketch6_width")
sketch6.setExpression("Constraints[20]", "Params.sketch6_height")
pad5 = doc.addObject("PartDesign::Pad", "Pad004")
body.addObject(pad5)
pad5.Profile = sketch6
pad5.setExpression("Length", "Params.pad5_length")

# Sketch on XY plane
sketch7 = doc.addObject("Sketcher::SketchObject", "Sketch006")
body.addObject(sketch7)
sketch7.AttachmentSupport = (doc.XY_Plane, [""])
sketch7.MapMode = "FlatFace"
sketch7.addGeometry([
    Part.LineSegment(Vector(-18, 21, 0), Vector(-18, 28, 0)),
    Part.LineSegment(Vector(-18, 28, 0), Vector(38, 28, 0)),
    Part.LineSegment(Vector(38, 28, 0), Vector(38, 21, 0)),
    Part.LineSegment(Vector(38, 21, 0), Vector(-18, 21, 0)),
], False)
sketch7.addConstraint([
    Sketcher.Constraint("Coincident", 0, 2, 1, 1),
    Sketcher.Constraint("Coincident", 1, 2, 2, 1),
    Sketcher.Constraint("Coincident", 2, 2, 3, 1),
    Sketcher.Constraint("Coincident", 3, 2, 0, 1),
    Sketcher.Constraint("Vertical", 0),
    Sketcher.Constraint("Horizontal", 1),
    Sketcher.Constraint("Vertical", 2),
    Sketcher.Constraint("Horizontal", 3),
    Sketcher.Constraint("DistanceX", 1, 1, 1, 2, Q("56 mm")),
    Sketcher.Constraint("DistanceY", 0, 1, 0, 2, Q("7 mm")),
    Sketcher.Constraint("DistanceX", 0, 2, -1, 1, Q("18 mm")),
    Sketcher.Constraint("DistanceY", -1, 1, 0, 2, Q("28 mm")),
])
sketch7.setExpression("Constraints[8]", "Params.sketch7_width")
sketch7.setExpression("Constraints[9]", "Params.sketch7_height")
pocket2 = doc.addObject("PartDesign::Pocket", "Pocket001")
body.addObject(pocket2)
pocket2.Profile = sketch7
pocket2.Type = "ThroughAll"
pocket2.Reversed = True

doc.recompute()
